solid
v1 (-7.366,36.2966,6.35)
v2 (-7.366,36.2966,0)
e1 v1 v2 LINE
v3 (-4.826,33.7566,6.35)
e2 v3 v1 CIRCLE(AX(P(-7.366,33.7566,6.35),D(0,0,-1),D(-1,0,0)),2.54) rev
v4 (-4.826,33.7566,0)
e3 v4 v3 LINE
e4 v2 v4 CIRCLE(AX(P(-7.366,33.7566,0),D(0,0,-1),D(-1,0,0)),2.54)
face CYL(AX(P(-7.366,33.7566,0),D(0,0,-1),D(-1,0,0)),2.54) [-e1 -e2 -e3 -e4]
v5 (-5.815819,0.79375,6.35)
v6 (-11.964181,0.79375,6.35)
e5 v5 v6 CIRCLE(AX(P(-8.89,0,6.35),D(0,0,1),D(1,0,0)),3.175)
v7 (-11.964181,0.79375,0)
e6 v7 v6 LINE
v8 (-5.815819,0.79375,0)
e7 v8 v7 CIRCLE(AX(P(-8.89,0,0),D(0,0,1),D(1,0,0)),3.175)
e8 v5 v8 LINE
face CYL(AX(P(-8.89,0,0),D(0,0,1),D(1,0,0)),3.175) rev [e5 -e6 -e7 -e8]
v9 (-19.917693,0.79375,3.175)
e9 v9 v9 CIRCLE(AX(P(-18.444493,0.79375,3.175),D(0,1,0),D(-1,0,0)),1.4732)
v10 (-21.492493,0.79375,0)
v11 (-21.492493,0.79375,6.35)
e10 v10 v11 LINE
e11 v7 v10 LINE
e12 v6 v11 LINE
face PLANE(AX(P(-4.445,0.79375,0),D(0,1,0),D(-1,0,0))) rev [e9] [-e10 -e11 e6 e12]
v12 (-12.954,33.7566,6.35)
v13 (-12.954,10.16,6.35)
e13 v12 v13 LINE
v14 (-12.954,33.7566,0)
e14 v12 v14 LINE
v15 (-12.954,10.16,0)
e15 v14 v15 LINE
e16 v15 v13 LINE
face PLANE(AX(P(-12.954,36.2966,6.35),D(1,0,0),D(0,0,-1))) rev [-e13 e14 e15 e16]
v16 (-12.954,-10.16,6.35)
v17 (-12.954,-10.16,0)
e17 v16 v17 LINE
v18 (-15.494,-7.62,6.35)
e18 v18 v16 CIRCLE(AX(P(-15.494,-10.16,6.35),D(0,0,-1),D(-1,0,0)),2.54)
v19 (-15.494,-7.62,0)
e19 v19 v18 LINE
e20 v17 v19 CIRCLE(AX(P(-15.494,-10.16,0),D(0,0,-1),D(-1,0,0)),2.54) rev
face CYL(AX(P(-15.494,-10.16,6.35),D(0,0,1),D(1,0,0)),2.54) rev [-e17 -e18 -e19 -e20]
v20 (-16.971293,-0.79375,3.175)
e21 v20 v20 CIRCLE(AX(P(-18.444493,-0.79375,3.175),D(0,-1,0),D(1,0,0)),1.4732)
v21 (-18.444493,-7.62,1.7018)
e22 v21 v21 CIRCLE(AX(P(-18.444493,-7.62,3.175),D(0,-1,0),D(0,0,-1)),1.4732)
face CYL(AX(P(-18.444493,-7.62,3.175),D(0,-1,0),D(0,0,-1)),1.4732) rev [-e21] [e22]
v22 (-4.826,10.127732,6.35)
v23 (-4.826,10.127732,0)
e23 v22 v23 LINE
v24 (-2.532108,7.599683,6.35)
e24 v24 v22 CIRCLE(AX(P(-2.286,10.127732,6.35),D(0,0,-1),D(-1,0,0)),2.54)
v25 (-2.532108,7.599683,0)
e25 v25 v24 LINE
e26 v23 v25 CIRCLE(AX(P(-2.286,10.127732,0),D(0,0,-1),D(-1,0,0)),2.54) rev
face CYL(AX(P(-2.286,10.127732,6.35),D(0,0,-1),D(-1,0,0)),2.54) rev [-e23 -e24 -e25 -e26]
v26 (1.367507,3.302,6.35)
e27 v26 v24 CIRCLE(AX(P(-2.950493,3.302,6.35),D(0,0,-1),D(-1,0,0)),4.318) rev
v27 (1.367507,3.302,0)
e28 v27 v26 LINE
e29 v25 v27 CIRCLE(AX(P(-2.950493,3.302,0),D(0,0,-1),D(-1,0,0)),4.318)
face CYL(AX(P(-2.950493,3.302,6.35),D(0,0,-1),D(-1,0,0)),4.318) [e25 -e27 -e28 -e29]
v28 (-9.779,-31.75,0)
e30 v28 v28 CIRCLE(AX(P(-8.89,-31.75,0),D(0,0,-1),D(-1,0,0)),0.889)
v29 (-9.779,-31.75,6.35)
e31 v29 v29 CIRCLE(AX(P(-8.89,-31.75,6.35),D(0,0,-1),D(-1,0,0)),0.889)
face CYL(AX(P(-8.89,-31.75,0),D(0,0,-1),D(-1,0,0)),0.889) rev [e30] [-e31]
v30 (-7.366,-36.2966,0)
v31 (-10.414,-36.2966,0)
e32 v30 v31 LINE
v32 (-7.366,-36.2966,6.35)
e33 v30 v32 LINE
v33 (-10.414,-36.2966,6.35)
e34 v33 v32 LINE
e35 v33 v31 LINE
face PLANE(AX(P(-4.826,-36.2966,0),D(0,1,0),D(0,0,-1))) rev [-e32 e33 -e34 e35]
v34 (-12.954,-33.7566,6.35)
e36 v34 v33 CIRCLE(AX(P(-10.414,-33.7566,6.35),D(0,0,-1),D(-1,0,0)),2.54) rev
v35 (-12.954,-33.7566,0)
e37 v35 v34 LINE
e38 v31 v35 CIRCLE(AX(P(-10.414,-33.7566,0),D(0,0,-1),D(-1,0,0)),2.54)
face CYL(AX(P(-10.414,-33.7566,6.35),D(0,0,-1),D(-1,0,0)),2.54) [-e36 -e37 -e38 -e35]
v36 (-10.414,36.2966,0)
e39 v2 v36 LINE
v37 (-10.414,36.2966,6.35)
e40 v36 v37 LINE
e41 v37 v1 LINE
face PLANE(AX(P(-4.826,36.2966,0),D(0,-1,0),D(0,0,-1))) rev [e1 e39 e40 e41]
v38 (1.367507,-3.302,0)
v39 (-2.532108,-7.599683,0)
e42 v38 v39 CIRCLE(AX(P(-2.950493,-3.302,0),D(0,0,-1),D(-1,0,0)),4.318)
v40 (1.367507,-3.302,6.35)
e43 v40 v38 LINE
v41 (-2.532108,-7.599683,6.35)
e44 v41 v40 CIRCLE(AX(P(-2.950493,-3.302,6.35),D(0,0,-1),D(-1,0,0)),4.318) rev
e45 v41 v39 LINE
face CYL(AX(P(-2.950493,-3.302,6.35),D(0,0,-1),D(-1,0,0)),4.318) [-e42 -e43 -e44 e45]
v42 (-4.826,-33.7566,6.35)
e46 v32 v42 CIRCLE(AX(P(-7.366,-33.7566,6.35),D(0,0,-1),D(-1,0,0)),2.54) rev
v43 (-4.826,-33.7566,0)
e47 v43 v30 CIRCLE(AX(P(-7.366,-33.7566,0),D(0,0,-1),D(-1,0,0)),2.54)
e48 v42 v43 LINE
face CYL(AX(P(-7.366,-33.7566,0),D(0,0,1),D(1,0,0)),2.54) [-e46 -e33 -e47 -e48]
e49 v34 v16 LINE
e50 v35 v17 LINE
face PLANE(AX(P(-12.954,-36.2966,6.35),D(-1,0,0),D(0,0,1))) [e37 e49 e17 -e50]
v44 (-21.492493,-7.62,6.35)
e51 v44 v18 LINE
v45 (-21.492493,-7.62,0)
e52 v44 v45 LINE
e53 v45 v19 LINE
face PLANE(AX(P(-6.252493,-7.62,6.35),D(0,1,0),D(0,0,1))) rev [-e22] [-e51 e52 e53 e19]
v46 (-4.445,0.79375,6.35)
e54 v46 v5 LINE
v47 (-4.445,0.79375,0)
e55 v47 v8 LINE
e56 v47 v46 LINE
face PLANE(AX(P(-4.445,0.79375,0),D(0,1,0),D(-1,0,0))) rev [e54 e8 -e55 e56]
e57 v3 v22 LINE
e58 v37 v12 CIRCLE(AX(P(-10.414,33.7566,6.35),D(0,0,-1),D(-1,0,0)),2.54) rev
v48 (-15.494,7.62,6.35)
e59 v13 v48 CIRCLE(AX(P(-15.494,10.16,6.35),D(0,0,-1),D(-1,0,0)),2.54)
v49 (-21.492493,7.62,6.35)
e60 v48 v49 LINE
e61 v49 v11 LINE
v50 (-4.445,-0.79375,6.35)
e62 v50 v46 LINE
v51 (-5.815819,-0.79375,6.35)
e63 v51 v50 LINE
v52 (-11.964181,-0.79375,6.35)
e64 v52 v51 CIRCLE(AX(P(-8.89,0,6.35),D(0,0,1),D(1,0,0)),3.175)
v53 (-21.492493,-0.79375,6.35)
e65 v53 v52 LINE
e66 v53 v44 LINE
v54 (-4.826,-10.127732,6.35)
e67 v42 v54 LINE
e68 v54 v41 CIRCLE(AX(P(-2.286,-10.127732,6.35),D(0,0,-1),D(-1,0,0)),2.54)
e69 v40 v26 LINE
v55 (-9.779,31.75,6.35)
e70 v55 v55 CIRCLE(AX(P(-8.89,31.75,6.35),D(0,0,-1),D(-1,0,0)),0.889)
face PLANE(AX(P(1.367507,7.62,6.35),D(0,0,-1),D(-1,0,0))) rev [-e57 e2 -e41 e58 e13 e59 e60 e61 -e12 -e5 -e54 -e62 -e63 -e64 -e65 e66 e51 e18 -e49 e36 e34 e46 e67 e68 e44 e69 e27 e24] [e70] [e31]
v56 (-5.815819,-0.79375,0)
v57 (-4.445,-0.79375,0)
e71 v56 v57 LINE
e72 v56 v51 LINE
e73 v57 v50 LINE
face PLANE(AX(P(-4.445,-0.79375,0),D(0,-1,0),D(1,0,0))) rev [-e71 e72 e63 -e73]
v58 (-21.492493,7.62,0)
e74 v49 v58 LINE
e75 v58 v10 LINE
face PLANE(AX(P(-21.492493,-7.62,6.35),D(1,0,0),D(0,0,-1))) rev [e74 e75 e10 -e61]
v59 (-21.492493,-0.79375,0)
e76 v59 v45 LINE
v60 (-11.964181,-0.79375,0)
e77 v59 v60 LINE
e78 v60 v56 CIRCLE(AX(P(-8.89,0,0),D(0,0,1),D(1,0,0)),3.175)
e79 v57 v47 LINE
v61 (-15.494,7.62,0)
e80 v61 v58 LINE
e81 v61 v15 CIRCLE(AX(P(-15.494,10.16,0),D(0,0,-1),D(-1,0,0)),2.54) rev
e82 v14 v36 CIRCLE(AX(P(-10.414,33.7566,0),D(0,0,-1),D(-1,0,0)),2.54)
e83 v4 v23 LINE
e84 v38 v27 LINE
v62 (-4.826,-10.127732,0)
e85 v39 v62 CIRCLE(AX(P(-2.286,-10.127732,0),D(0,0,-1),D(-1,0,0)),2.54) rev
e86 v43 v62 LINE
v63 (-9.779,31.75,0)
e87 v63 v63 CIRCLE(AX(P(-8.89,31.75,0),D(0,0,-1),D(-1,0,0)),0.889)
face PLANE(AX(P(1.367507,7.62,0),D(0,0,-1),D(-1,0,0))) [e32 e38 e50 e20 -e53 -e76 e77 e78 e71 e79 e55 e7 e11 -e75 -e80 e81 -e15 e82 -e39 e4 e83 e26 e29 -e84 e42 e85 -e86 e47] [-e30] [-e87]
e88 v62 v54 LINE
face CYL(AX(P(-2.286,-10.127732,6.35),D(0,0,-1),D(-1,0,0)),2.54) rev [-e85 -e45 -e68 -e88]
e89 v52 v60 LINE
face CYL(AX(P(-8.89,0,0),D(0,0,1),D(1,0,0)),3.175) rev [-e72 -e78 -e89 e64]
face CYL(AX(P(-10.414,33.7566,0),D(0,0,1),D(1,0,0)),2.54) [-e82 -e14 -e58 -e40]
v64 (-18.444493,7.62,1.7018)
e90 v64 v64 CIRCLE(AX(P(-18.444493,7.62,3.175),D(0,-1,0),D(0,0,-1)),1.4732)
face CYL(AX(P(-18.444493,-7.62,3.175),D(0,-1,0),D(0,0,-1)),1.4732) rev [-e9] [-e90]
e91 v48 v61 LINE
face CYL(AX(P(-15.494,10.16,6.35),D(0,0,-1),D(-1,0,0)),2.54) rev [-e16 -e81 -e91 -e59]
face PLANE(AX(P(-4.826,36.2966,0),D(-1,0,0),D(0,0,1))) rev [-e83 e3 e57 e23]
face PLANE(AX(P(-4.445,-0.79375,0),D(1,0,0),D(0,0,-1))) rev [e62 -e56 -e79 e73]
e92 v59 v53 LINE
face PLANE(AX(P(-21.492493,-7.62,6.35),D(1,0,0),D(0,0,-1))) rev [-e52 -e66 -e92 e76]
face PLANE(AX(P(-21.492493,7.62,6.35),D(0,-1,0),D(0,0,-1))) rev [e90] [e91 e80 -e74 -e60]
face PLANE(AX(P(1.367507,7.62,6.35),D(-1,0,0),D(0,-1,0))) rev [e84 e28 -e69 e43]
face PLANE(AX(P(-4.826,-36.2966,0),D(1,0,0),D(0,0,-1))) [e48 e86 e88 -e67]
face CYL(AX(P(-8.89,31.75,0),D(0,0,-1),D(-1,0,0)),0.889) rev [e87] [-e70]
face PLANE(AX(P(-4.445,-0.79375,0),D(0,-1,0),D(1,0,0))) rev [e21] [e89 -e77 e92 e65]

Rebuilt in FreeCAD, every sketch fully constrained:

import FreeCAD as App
import Part
import Sketcher
Q = App.Units.Quantity


def edges_at(feature, points):
    """Names of the edges that pass closest to the given points."""
    edges = feature.Shape.Edges
    near = lambda p: min(range(len(edges)), key=lambda i: edges[i].distToShape(Part.Vertex(*p))[0])
    return sorted({f"Edge{near(p) + 1}" for p in points})


def add_polygon(sketch, points):
    """Adds a closed chain of lines whose ends are joined by coincident constraints."""
    first, n = sketch.GeometryCount, len(points)
    for a, b in zip(points, points[1:] + points[:1]):
        sketch.addGeometry(Part.LineSegment(App.Vector(*a, 0), App.Vector(*b, 0)), False)
    for i in range(n):
        sketch.addConstraint(Sketcher.Constraint("Coincident", first + i, 2, first + (i + 1) % n, 1))

doc = App.newDocument("Part")
params = doc.addObject("Spreadsheet::Sheet", "Params")
for row, (alias, value) in enumerate([
    ("sketch1_width", "0.9 in"),
    ("sketch1_height", "0.6 in"),
    ("pad1_length", "0.25 in"),
    ("sketch2_height", "0.0625 in"),
    ("sketch3_diameter", "0.25 in"),
    ("fillet_radius", "0.17 in"),
    ("sketch4_diameter", "0.116 in"),
    ("hole_diameter", "0.116 in"),
    ("sketch5_width", "0.32 in"),
    ("sketch5_height", "0.25 in"),
    ("pad2_length", "1.129 in"),
    ("sketch6_height", "0.25 in"),
    ("sketch6_width", "0.035 in"),
    ("groove_angle", "360 deg"),
    ("fillet2_radius", "0.1 in"),
], start=1):
    params.set(f"A{row}", alias)
    params.set(f"B{row}", "=" + value)
    params.setAlias(f"B{row}", alias)

body = doc.addObject("PartDesign::Body", "Body")

sketch1 = doc.addObject("Sketcher::SketchObject", "Sketch")
body.addObject(sketch1)
sketch1.AttachmentSupport = (doc.XY_Plane, [""])
sketch1.MapMode = "FlatFace"
add_polygon(sketch1, [(1, 8), (-21, 8), (-21, -8), (1, -8)])
sketch1.addConstraint([
    Sketcher.Constraint("Horizontal", 0),
    Sketcher.Constraint("Vertical", 1),
    Sketcher.Constraint("Horizontal", 2),
    Sketcher.Constraint("Vertical", 3),
    Sketcher.Constraint("DistanceX", 0, 2, 0, 1, Q("0.9 in")),
    Sketcher.Constraint("DistanceY", 1, 2, 1, 1, Q("0.6 in")),
    Sketcher.Constraint("DistanceY", -1, 1, 0, 2, Q("0.3 in")),
    Sketcher.Constraint("DistanceX", 0, 2, -1, 1, Q("21.492493 mm")),
])
sketch1.setExpression("Constraints[8]", "Params.sketch1_width")
sketch1.setExpression("Constraints[9]", "Params.sketch1_height")
pad1 = doc.addObject("PartDesign::Pad", "Pad")
body.addObject(pad1)
pad1.Profile = sketch1
pad1.setExpression("Length", "Params.pad1_length")

sketch2 = doc.addObject("Sketcher::SketchObject", "Sketch001")
body.addObject(sketch2)
sketch2.AttachmentSupport = (doc.XY_Plane, [""])
sketch2.MapMode = "FlatFace"
sketch2.AttachmentOffset = App.Placement(App.Vector(0, 0, 0.25 * 25.4), App.Rotation())
add_polygon(sketch2, [(-21.5, 0.8), (-21.5, -0.8), (-4.4, -0.8), (-4.4, 0.8)])
sketch2.addConstraint([
    Sketcher.Constraint("Vertical", 0),
    Sketcher.Constraint("Horizontal", 1),
    Sketcher.Constraint("Vertical", 2),
    Sketcher.Constraint("Horizontal", 3),
    Sketcher.Constraint("DistanceY", 0, 2, 0, 1, Q("0.0625 in")),
    Sketcher.Constraint("DistanceY", 0, 2, -1, 1, Q("0.03125 in")),
    Sketcher.Constraint("DistanceX", 1, 2, -1, 1, Q("0.175 in")),
    Sketcher.Constraint("DistanceX", 1, 1, 1, 2, Q("17.047493 mm")),
])
sketch2.setExpression("Constraints[8]", "Params.sketch2_height")
pocket1 = doc.addObject("PartDesign::Pocket", "Pocket")
body.addObject(pocket1)
pocket1.Profile = sketch2
pocket1.Type = "ThroughAll"

sketch3 = doc.addObject("Sketcher::SketchObject", "Sketch002")
body.addObject(sketch3)
sketch3.AttachmentSupport = (doc.XY_Plane, [""])
sketch3.MapMode = "FlatFace"
sketch3.AttachmentOffset = App.Placement(App.Vector(0, 0, 0.25 * 25.4), App.Rotation())
sketch3.addGeometry(Part.Circle(App.Vector(-8.9, 0, 0), App.Vector(0, 0, 1), 3.2), False)
sketch3.addConstraint([
    Sketcher.Constraint("PointOnObject", 0, 3, -1),
    Sketcher.Constraint("Diameter", 0, Q("0.25 in")),
    Sketcher.Constraint("DistanceX", 0, 3, -1, 1, Q("0.35 in")),
])
sketch3.setExpression("Constraints[1]", "Params.sketch3_diameter")
pocket2 = doc.addObject("PartDesign::Pocket", "Pocket001")
body.addObject(pocket2)
pocket2.Profile = sketch3
pocket2.Type = "ThroughAll"
doc.recompute()

fillet = doc.addObject("PartDesign::Fillet", "Fillet")
body.addObject(fillet)
fillet.Base = (pocket2, edges_at(pocket2, [(1.368, 7.62, 3.175), (1.368, -7.62, 3.175)]))
fillet.setExpression("Radius", "Params.fillet_radius")

sketch4 = doc.addObject("Sketcher::SketchObject", "Sketch003")
body.addObject(sketch4)
sketch4.AttachmentSupport = (doc.XZ_Plane, [""])
sketch4.MapMode = "FlatFace"
sketch4.AttachmentOffset = App.Placement(App.Vector(0, 0, 0.3 * 25.4), App.Rotation())
sketch4.addGeometry(Part.Circle(App.Vector(-18.4, 3.2, 0), App.Vector(0, 0, 1), 1.5), False)
sketch4.addConstraint([
    Sketcher.Constraint("Diameter", 0, Q("0.116 in")),
    Sketcher.Constraint("DistanceY", -1, 1, 0, 3, Q("0.125 in")),
    Sketcher.Constraint("DistanceX", 0, 3, -1, 1, Q("18.444493 mm")),
])
sketch4.setExpression("Constraints[0]", "Params.sketch4_diameter")
doc.recompute()
hole = doc.addObject("PartDesign::Hole", "Hole")
body.addObject(hole)
hole.Profile = sketch4
hole.ThreadType = "None"
hole.setExpression("Diameter", "Params.hole_diameter")
hole.DepthType = "ThroughAll"

sketch5 = doc.addObject("Sketcher::SketchObject", "Sketch004")
body.addObject(sketch5)
sketch5.AttachmentSupport = (doc.XZ_Plane, [""])
sketch5.MapMode = "FlatFace"
sketch5.AttachmentOffset = App.Placement(App.Vector(0, 0, -0.3 * 25.4), App.Rotation())
add_polygon(sketch5, [(-5, 0), (-13, 0), (-13, 6), (-5, 6)])
sketch5.addConstraint([
    Sketcher.Constraint("Horizontal", 0),
    Sketcher.Constraint("Vertical", 1),
    Sketcher.Constraint("Horizontal", 2),
    Sketcher.Constraint("Vertical", 3),
    Sketcher.Constraint("PointOnObject", 0, 2, -1),
    Sketcher.Constraint("DistanceX", 0, 2, 0, 1, Q("0.32 in")),
    Sketcher.Constraint("DistanceY", 1, 1, 1, 2, Q("0.25 in")),
    Sketcher.Constraint("DistanceX", 0, 2, -1, 1, Q("0.51 in")),
])
sketch5.setExpression("Constraints[9]", "Params.sketch5_width")
sketch5.setExpression("Constraints[10]", "Params.sketch5_height")
pad2 = doc.addObject("PartDesign::Pad", "Pad001")
body.addObject(pad2)
pad2.Profile = sketch5
pad2.setExpression("Length", "Params.pad2_length")
pad2.Reversed = True

sketch6 = doc.addObject("Sketcher::SketchObject", "Sketch005")
body.addObject(sketch6)
sketch6.AttachmentSupport = (doc.YZ_Plane, [""])
sketch6.MapMode = "FlatFace"
sketch6.AttachmentOffset = App.Placement(App.Vector(0, 0, -0.35 * 25.4), App.Rotation())
add_polygon(sketch6, [(31.8, 6.9), (31.8, 0), (32.6, 0), (32.6, 6.3)])
sketch6.addGeometry(Part.LineSegment(App.Vector(31.8, 0, 0), App.Vector(31.8, 6.9, 0)), True)
sketch6.addConstraint([
    Sketcher.Constraint("Vertical", 0),
    Sketcher.Constraint("Horizontal", 1),
    Sketcher.Constraint("Vertical", 2),
    Sketcher.Constraint("Vertical", 4),
    Sketcher.Constraint("Coincident", 4, 1, 0, 2),
    Sketcher.Constraint("PointOnObject", 0, 2, -1),
    Sketcher.Constraint("Equal", 0, 4),
    Sketcher.Constraint("Angle", 3, Q("149 deg")),
    Sketcher.Constraint("DistanceY", 2, 1, 2, 2, Q("0.25 in")),
    Sketcher.Constraint("DistanceX", 1, 1, 1, 2, Q("0.035 in")),
    Sketcher.Constraint("DistanceX", -1, 1, 0, 2, Q("1.25 in")),
])
sketch6.setExpression("Constraints[12]", "Params.sketch6_height")
sketch6.setExpression("Constraints[13]", "Params.sketch6_width")
groove = doc.addObject("PartDesign::Groove", "Groove")
body.addObject(groove)
groove.Profile = sketch6
groove.ReferenceAxis = (sketch6, ["Axis0"])
groove.setExpression("Angle", "Params.groove_angle")
doc.recompute()

mirrored = doc.addObject("PartDesign::Mirrored", "Mirrored")
body.addObject(mirrored)
mirrored.Originals = [pad2, groove]
mirrored.MirrorPlane = (doc.XZ_Plane, [""])
body.Tip = mirrored
doc.recompute()

fillet2 = doc.addObject("PartDesign::Fillet", "Fillet001")
body.addObject(fillet2)
fillet2.Base = (mirrored, edges_at(mirrored, [
    (-12.954, 7.62, 3.175),
    (-4.826, 7.62, 3.175),
    (-12.954, 36.297, 3.175),
    (-4.826, 36.297, 3.175),
    (-12.954, -36.297, 3.175),
    (-12.954, -7.62, 3.175),
    (-4.826, -7.62, 3.175),
    (-4.826, -36.297, 3.175),
]))
fillet2.setExpression("Radius", "Params.fillet2_radius")

doc.recompute()
